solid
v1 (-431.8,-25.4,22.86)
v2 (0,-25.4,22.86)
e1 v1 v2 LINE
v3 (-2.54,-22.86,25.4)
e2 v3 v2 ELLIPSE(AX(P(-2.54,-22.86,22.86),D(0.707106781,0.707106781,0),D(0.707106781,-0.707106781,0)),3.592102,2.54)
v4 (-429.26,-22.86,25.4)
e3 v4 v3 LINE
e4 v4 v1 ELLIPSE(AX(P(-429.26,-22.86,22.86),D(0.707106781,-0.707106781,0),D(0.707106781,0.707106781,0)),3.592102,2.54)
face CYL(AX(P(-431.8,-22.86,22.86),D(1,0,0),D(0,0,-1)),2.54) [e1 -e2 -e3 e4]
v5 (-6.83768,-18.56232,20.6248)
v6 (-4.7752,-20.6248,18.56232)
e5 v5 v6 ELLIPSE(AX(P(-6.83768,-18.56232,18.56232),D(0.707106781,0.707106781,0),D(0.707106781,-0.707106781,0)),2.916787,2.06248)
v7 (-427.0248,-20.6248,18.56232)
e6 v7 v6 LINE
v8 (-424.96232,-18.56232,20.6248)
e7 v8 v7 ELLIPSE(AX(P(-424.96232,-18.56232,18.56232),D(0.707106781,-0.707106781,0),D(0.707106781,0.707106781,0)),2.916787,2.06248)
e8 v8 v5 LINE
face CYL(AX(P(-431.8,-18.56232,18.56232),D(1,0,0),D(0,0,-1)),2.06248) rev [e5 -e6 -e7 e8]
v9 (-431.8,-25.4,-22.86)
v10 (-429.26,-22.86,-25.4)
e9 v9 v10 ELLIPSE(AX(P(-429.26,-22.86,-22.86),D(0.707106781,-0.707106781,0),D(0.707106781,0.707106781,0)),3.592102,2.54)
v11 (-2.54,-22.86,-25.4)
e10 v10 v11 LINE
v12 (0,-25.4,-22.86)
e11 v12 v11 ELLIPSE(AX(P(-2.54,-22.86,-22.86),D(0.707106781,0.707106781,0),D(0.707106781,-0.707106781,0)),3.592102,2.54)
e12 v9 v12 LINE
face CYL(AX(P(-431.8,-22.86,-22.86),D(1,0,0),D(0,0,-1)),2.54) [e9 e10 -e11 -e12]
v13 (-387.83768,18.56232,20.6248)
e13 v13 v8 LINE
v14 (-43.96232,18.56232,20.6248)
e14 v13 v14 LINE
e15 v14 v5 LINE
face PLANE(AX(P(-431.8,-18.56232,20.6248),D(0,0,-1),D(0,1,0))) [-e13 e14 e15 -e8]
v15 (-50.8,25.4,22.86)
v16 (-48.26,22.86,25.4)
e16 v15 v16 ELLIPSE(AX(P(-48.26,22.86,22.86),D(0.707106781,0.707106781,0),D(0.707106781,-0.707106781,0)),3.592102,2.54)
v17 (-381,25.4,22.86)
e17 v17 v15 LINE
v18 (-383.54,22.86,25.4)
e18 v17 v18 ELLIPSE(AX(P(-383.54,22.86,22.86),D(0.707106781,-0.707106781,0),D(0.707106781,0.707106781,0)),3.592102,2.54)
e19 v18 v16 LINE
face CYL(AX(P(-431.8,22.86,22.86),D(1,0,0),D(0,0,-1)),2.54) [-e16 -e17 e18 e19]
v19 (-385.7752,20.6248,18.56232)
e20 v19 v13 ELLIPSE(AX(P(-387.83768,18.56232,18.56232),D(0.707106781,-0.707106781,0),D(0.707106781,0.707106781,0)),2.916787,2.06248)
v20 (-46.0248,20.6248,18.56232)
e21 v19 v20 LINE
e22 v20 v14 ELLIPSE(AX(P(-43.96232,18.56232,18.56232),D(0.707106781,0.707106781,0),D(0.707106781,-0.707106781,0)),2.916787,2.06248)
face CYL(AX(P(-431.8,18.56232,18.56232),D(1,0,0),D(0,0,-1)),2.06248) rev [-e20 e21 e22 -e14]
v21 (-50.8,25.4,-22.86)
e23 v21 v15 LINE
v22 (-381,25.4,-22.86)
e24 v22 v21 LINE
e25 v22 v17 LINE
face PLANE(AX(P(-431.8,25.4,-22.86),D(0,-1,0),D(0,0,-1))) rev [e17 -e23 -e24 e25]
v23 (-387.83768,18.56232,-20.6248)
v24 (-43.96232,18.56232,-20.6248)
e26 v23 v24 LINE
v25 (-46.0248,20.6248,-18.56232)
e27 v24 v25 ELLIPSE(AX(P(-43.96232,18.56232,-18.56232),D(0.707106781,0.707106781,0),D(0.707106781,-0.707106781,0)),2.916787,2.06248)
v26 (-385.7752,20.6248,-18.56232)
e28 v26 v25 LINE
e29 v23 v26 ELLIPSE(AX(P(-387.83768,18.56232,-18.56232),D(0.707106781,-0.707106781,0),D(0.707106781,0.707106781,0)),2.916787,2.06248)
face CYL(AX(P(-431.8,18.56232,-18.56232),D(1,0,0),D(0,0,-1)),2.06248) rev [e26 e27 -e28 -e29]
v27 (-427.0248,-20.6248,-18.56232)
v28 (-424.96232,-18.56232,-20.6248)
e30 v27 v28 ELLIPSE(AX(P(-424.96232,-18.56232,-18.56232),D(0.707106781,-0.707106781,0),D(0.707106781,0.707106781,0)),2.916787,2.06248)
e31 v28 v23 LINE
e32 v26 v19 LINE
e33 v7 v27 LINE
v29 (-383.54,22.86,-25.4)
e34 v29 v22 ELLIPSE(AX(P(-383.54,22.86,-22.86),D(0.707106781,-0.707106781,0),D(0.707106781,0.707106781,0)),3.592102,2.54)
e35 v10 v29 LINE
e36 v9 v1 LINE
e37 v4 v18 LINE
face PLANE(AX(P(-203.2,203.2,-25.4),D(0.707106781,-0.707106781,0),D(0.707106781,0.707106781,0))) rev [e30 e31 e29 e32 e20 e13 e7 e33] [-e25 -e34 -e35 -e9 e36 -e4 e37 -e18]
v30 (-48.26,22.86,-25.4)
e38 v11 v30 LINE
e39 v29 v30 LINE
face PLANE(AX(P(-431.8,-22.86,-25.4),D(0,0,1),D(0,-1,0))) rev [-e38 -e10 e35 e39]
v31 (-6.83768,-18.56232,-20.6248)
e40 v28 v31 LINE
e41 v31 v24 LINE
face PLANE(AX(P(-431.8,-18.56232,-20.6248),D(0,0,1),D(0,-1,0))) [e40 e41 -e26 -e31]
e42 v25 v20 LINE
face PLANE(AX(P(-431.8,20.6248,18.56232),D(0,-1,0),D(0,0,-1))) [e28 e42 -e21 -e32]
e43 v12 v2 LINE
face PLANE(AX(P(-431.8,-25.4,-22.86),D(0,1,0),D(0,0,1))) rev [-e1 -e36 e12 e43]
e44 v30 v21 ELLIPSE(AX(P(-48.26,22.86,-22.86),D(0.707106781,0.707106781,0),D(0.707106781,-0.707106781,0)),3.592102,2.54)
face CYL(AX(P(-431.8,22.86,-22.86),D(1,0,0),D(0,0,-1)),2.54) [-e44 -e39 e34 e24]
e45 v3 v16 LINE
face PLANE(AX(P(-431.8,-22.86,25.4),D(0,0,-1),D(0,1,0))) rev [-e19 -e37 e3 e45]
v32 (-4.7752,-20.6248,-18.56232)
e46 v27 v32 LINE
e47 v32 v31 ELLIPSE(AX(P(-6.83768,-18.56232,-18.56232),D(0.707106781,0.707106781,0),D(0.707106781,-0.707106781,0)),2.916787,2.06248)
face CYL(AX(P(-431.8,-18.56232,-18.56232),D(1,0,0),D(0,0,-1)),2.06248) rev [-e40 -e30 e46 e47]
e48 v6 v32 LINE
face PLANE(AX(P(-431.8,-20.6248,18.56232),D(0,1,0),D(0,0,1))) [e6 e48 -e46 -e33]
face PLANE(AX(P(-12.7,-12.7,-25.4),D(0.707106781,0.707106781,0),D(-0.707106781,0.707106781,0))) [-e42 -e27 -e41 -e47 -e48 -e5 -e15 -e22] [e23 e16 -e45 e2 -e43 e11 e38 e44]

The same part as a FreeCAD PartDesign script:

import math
import FreeCAD as App
import Part
import Sketcher
Q = App.Units.Quantity


def add_polygon(sketch, points):
    """Adds a closed chain of lines whose ends are joined by coincident constraints."""
    first, n = sketch.GeometryCount, len(points)
    for a, b in zip(points, points[1:] + points[:1]):
        sketch.addGeometry(Part.LineSegment(App.Vector(*a, 0), App.Vector(*b, 0)), False)
    for i in range(n):
        sketch.addConstraint(Sketcher.Constraint("Coincident", first + i, 2, first + (i + 1) % n, 1))

doc = App.newDocument("Part")
body = doc.addObject("PartDesign::Body", "Body")

# Sketch on YZ plane
sketch1 = body.newObject("Sketcher::SketchObject", "Sketch")
sketch1.AttachmentSupport = (doc.getObject("YZ_Plane"), [""])
sketch1.MapMode = "FlatFace"
sketch1.addGeometry(Part.LineSegment(App.Vector(22.9, -25.4, 0), App.Vector(-22.9, -25.4, 0)), False)
sketch1.addGeometry(Part.ArcOfCircle(Part.Circle(App.Vector(-22.9, -22.9, 0), App.Vector(0, 0, 1), 2.5), math.radians(-180), math.radians(-90)), False)
sketch1.addGeometry(Part.LineSegment(App.Vector(-25.4, -22.9, 0), App.Vector(-25.4, 22.9, 0)), False)
sketch1.addGeometry(Part.ArcOfCircle(Part.Circle(App.Vector(-22.9, 22.9, 0), App.Vector(0, 0, 1), 2.5), math.radians(90), math.radians(180)), False)
sketch1.addGeometry(Part.LineSegment(App.Vector(-22.9, 25.4, 0), App.Vector(22.9, 25.4, 0)), False)
sketch1.addGeometry(Part.ArcOfCircle(Part.Circle(App.Vector(22.9, 22.9, 0), App.Vector(0, 0, 1), 2.5), math.radians(0), math.radians(90)), False)
sketch1.addGeometry(Part.LineSegment(App.Vector(25.4, 22.9, 0), App.Vector(25.4, -22.9, 0)), False)
sketch1.addGeometry(Part.ArcOfCircle(Part.Circle(App.Vector(22.9, -22.9, 0), App.Vector(0, 0, 1), 2.5), math.radians(-90), math.radians(0)), False)
sketch1.addGeometry(Part.ArcOfCircle(Part.Circle(App.Vector(-18.6, 18.6, 0), App.Vector(0, 0, 1), 2.1), math.radians(90), math.radians(180)), False)
sketch1.addGeometry(Part.LineSegment(App.Vector(-20.6, 18.6, 0), App.Vector(-20.6, -18.6, 0)), False)
sketch1.addGeometry(Part.ArcOfCircle(Part.Circle(App.Vector(-18.6, -18.6, 0), App.Vector(0, 0, 1), 2.1), math.radians(180), math.radians(270)), False)
sketch1.addGeometry(Part.LineSegment(App.Vector(-18.6, -20.6, 0), App.Vector(18.6, -20.6, 0)), False)
sketch1.addGeometry(Part.ArcOfCircle(Part.Circle(App.Vector(18.6, -18.6, 0), App.Vector(0, 0, 1), 2.1), math.radians(-90), math.radians(0)), False)
sketch1.addGeometry(Part.LineSegment(App.Vector(20.6, -18.6, 0), App.Vector(20.6, 18.6, 0)), False)
sketch1.addGeometry(Part.ArcOfCircle(Part.Circle(App.Vector(18.6, 18.6, 0), App.Vector(0, 0, 1), 2.1), math.radians(0), math.radians(90)), False)
sketch1.addGeometry(Part.LineSegment(App.Vector(18.6, 20.6, 0), App.Vector(-18.6, 20.6, 0)), False)
sketch1.addConstraint(Sketcher.Constraint("Tangent", 0, 2, 1, 2))
sketch1.addConstraint(Sketcher.Constraint("Tangent", 1, 1, 2, 1))
sketch1.addConstraint(Sketcher.Constraint("Tangent", 2, 2, 3, 2))
sketch1.addConstraint(Sketcher.Constraint("Tangent", 3, 1, 4, 1))
sketch1.addConstraint(Sketcher.Constraint("Tangent", 4, 2, 5, 2))
sketch1.addConstraint(Sketcher.Constraint("Tangent", 5, 1, 6, 1))
sketch1.addConstraint(Sketcher.Constraint("Tangent", 6, 2, 7, 2))
sketch1.addConstraint(Sketcher.Constraint("Tangent", 7, 1, 0, 1))
sketch1.addConstraint(Sketcher.Constraint("Tangent", 8, 2, 9, 1))
sketch1.addConstraint(Sketcher.Constraint("Tangent", 9, 2, 10, 1))
sketch1.addConstraint(Sketcher.Constraint("Tangent", 10, 2, 11, 1))
sketch1.addConstraint(Sketcher.Constraint("Tangent", 11, 2, 12, 1))
sketch1.addConstraint(Sketcher.Constraint("Tangent", 12, 2, 13, 1))
sketch1.addConstraint(Sketcher.Constraint("Tangent", 13, 2, 14, 1))
sketch1.addConstraint(Sketcher.Constraint("Tangent", 14, 2, 15, 1))
sketch1.addConstraint(Sketcher.Constraint("Tangent", 15, 2, 8, 1))
sketch1.addConstraint(Sketcher.Constraint("Horizontal", 0))
sketch1.addConstraint(Sketcher.Constraint("Vertical", 2))
sketch1.addConstraint(Sketcher.Constraint("Horizontal", 4))
sketch1.addConstraint(Sketcher.Constraint("Vertical", 6))
sketch1.addConstraint(Sketcher.Constraint("Vertical", 9))
sketch1.addConstraint(Sketcher.Constraint("Horizontal", 11))
sketch1.addConstraint(Sketcher.Constraint("Vertical", 13))
sketch1.addConstraint(Sketcher.Constraint("Horizontal", 15))
sketch1.addConstraint(Sketcher.Constraint("Equal", 1, 3))
sketch1.addConstraint(Sketcher.Constraint("Equal", 3, 5))
sketch1.addConstraint(Sketcher.Constraint("Equal", 5, 7))
sketch1.addConstraint(Sketcher.Constraint("Equal", 8, 10))
sketch1.addConstraint(Sketcher.Constraint("Equal", 10, 12))
sketch1.addConstraint(Sketcher.Constraint("Equal", 12, 14))
sketch1.addConstraint(Sketcher.Constraint("Symmetric", 1, 3, 5, 3, -1, 1))
sketch1.addConstraint(Sketcher.Constraint("Symmetric", 8, 3, 12, 3, -1, 1))
sketch1.addConstraint(Sketcher.Constraint("Equal", 4, 2))
sketch1.addConstraint(Sketcher.Constraint("Equal", 15, 9))
sketch1.addConstraint(Sketcher.Constraint("Radius", 1, Q("0.1 in")))
sketch1.addConstraint(Sketcher.Constraint("DistanceX", 0, 2, 0, 1, Q("1.8 in")))
sketch1.addConstraint(Sketcher.Constraint("Radius", 8, Q("0.0812 in")))
sketch1.addConstraint(Sketcher.Constraint("DistanceX", 11, 1, 11, 2, Q("1.4616 in")))
pad1 = body.newObject("PartDesign::Pad", "Pad")
pad1.Profile = sketch1
pad1.Length = Q("17 in")
pad1.Reversed = True

# Sketch on XY plane
sketch2 = body.newObject("Sketcher::SketchObject", "Sketch001")
sketch2.AttachmentSupport = (doc.getObject("XY_Plane"), [""])
sketch2.MapMode = "FlatFace"
sketch2.AttachmentOffset = App.Placement(App.Vector(0, 0, 1 * 25.4), App.Rotation())
add_polygon(sketch2, [(-432, 25), (-432, -25), (-381, 25)])  # lines 0-2
add_polygon(sketch2, [(0, -25), (0, 25), (-51, 25)])  # lines 3-5
sketch2.addConstraint(Sketcher.Constraint("Vertical", 0))
sketch2.addConstraint(Sketcher.Constraint("Horizontal", 2))
sketch2.addConstraint(Sketcher.Constraint("Vertical", 3))
sketch2.addConstraint(Sketcher.Constraint("Horizontal", 4))
sketch2.addConstraint(Sketcher.Constraint("Symmetric", 3, 2, 5, 2, -1, 1))
sketch2.addConstraint(Sketcher.Constraint("Perpendicular", 1, 5))
sketch2.addConstraint(Sketcher.Constraint("Horizontal", 2, 2, 3, 2))
sketch2.addConstraint(Sketcher.Constraint("Horizontal", 0, 2, 5, 2))
sketch2.addConstraint(Sketcher.Constraint("Equal", 2, 4))
sketch2.addConstraint(Sketcher.Constraint("DistanceX", 2, 2, 2, 1, Q("2 in")))
sketch2.addConstraint(Sketcher.Constraint("DistanceX", 0, 2, -1, 1, Q("17 in")))
pocket1 = body.newObject("PartDesign::Pocket", "Pocket")
pocket1.Profile = sketch2
pocket1.Type = "ThroughAll"

doc.recompute()
